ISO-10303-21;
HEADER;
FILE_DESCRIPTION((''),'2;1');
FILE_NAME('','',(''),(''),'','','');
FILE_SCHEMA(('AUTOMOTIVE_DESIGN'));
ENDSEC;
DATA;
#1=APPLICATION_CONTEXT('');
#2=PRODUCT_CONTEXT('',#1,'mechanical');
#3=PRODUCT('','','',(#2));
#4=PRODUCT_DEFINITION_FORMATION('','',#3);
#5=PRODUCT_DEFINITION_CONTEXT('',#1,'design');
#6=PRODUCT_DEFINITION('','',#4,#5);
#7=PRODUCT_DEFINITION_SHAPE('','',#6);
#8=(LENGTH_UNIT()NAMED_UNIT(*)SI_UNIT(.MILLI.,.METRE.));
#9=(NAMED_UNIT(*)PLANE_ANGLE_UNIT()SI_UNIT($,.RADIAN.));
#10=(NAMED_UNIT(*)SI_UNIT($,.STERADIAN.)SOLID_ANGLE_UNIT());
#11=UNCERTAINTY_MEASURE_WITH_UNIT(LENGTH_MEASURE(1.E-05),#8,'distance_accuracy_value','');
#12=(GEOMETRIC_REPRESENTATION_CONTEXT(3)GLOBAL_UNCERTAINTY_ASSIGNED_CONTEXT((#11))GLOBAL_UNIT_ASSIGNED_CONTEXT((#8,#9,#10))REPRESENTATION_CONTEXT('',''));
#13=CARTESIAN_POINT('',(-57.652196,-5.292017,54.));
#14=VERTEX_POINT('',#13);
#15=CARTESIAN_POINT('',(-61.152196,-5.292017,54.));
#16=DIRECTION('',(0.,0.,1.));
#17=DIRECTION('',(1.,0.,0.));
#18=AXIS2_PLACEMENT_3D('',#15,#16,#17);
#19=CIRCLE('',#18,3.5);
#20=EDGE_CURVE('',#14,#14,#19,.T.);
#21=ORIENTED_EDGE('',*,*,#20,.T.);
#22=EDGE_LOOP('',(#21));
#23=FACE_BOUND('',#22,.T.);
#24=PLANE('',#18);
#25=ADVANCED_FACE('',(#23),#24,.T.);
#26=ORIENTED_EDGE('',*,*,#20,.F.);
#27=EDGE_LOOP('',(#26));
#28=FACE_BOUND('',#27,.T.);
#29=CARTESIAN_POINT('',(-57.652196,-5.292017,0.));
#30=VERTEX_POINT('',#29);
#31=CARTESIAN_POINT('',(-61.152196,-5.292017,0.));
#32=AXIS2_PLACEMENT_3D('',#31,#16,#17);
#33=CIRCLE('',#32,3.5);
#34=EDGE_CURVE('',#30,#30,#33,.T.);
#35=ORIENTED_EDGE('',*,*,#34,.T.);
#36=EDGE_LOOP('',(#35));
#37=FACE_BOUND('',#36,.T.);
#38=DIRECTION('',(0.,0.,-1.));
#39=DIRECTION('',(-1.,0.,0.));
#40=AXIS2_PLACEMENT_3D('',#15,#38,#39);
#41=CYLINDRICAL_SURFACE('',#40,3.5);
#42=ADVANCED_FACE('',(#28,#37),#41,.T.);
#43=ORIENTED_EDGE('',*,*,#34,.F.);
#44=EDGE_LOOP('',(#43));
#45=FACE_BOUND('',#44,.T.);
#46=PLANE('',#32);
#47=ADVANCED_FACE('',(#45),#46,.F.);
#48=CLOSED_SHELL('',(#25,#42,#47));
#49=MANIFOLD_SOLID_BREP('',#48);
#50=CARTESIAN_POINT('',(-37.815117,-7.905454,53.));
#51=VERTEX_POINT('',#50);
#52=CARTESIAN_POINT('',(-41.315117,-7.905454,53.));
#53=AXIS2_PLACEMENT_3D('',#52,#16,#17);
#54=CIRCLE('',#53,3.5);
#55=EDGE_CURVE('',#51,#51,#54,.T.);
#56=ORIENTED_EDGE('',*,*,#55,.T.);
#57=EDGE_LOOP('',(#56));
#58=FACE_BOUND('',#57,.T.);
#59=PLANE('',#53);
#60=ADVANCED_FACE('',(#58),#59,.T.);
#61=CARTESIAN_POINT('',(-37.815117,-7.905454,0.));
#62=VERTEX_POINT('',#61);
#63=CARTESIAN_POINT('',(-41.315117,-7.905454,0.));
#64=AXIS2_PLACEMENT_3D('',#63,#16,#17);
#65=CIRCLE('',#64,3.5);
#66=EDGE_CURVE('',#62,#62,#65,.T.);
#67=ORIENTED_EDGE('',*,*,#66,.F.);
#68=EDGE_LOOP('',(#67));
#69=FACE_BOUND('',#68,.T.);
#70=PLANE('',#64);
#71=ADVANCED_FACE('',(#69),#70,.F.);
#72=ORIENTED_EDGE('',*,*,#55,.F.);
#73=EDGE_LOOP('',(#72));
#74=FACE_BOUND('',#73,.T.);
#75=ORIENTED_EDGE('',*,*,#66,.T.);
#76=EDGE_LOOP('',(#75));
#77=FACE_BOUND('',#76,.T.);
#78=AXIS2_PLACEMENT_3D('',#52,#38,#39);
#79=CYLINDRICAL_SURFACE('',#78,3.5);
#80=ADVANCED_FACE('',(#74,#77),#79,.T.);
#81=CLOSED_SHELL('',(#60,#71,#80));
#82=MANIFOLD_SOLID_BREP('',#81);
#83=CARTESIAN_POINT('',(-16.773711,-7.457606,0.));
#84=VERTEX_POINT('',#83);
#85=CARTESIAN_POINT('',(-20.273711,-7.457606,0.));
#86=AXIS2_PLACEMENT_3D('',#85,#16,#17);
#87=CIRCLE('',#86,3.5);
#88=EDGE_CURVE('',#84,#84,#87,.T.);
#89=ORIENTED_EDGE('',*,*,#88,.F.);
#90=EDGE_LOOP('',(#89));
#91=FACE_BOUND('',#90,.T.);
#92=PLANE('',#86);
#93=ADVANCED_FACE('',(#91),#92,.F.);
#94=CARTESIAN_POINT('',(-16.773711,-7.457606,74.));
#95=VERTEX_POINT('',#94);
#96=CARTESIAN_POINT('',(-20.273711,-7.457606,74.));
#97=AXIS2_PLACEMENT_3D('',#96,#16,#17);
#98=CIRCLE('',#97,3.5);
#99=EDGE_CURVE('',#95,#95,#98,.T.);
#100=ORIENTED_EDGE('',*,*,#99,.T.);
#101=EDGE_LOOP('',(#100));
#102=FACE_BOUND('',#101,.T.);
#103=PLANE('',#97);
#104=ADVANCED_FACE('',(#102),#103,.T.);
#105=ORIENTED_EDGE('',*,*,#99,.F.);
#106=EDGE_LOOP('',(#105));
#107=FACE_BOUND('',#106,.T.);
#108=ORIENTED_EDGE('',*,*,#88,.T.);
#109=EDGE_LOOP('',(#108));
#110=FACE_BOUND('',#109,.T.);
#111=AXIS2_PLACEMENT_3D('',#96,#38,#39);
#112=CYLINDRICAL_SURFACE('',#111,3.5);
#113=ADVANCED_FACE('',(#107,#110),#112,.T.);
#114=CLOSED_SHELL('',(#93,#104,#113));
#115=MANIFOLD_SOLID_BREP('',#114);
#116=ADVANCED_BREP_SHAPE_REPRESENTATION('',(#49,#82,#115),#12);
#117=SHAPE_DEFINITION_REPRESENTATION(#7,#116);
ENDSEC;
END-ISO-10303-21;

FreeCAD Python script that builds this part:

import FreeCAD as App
import Part
import Sketcher
from FreeCAD import Vector
Q = App.Units.Quantity

doc = App.newDocument("Part")
params = doc.addObject("Spreadsheet::Sheet", "Params")
for row, (alias, value) in enumerate([
    ("sketch1_diameter", "7 mm"),
    ("pad1_length", "54 mm"),
    ("sketch2_diameter", "7 mm"),
    ("pad2_length", "53 mm"),
    ("sketch3_diameter", "7 mm"),
    ("pad3_length", "74 mm"),
], start=1):
    params.set(f"A{row}", alias)
    params.set(f"B{row}", "=" + value)
    params.setAlias(f"B{row}", alias)

body = doc.addObject("PartDesign::Body", "Body")

sketch1 = doc.addObject("Sketcher::SketchObject", "Sketch")
body.addObject(sketch1)
sketch1.AttachmentSupport = (doc.XY_Plane, [""])
sketch1.MapMode = "FlatFace"
sketch1.addGeometry(Part.Circle(Vector(-61.2, -5.3, 0), Vector(0, 0, 1), 3.5), False)
sketch1.addConstraint(Sketcher.Constraint("Diameter", 0, Q("7 mm")))
sketch1.addConstraint(Sketcher.Constraint("DistanceX", 0, 3, -1, 1, Q("61.152196 mm")))
sketch1.addConstraint(Sketcher.Constraint("DistanceY", 0, 3, -1, 1, Q("5.292017 mm")))
sketch1.setExpression("Constraints[0]", "Params.sketch1_diameter")
pad1 = doc.addObject("PartDesign::Pad", "Pad")
body.addObject(pad1)
pad1.Profile = sketch1
pad1.setExpression("Length", "Params.pad1_length")
body2 = doc.addObject("PartDesign::Body", "Body001")

sketch2 = doc.addObject("Sketcher::SketchObject", "Sketch001")
body2.addObject(sketch2)
sketch2.AttachmentSupport = (doc.getObject("XY_Plane001"), [""])
sketch2.MapMode = "FlatFace"
sketch2.addGeometry(Part.Circle(Vector(-41.3, -7.9, 0), Vector(0, 0, 1), 3.5), False)
sketch2.addConstraint(Sketcher.Constraint("Diameter", 0, Q("7 mm")))
sketch2.addConstraint(Sketcher.Constraint("DistanceX", 0, 3, -1, 1, Q("41.315117 mm")))
sketch2.addConstraint(Sketcher.Constraint("DistanceY", 0, 3, -1, 1, Q("7.905454 mm")))
sketch2.setExpression("Constraints[0]", "Params.sketch2_diameter")
pad2 = doc.addObject("PartDesign::Pad", "Pad001")
body2.addObject(pad2)
pad2.Profile = sketch2
pad2.setExpression("Length", "Params.pad2_length")
body3 = doc.addObject("PartDesign::Body", "Body002")

sketch3 = doc.addObject("Sketcher::SketchObject", "Sketch002")
body3.addObject(sketch3)
sketch3.AttachmentSupport = (doc.getObject("XY_Plane002"), [""])
sketch3.MapMode = "FlatFace"
sketch3.addGeometry(Part.Circle(Vector(-20.3, -7.5, 0), Vector(0, 0, 1), 3.5), False)
sketch3.addConstraint(Sketcher.Constraint("Diameter", 0, Q("7 mm")))
sketch3.addConstraint(Sketcher.Constraint("DistanceX", 0, 3, -1, 1, Q("20.273711 mm")))
sketch3.addConstraint(Sketcher.Constraint("DistanceY", 0, 3, -1, 1, Q("7.457606 mm")))
sketch3.setExpression("Constraints[0]", "Params.sketch3_diameter")
pad3 = doc.addObject("PartDesign::Pad", "Pad002")
body3.addObject(pad3)
pad3.Profile = sketch3
pad3.setExpression("Length", "Params.pad3_length")

doc.recompute()
